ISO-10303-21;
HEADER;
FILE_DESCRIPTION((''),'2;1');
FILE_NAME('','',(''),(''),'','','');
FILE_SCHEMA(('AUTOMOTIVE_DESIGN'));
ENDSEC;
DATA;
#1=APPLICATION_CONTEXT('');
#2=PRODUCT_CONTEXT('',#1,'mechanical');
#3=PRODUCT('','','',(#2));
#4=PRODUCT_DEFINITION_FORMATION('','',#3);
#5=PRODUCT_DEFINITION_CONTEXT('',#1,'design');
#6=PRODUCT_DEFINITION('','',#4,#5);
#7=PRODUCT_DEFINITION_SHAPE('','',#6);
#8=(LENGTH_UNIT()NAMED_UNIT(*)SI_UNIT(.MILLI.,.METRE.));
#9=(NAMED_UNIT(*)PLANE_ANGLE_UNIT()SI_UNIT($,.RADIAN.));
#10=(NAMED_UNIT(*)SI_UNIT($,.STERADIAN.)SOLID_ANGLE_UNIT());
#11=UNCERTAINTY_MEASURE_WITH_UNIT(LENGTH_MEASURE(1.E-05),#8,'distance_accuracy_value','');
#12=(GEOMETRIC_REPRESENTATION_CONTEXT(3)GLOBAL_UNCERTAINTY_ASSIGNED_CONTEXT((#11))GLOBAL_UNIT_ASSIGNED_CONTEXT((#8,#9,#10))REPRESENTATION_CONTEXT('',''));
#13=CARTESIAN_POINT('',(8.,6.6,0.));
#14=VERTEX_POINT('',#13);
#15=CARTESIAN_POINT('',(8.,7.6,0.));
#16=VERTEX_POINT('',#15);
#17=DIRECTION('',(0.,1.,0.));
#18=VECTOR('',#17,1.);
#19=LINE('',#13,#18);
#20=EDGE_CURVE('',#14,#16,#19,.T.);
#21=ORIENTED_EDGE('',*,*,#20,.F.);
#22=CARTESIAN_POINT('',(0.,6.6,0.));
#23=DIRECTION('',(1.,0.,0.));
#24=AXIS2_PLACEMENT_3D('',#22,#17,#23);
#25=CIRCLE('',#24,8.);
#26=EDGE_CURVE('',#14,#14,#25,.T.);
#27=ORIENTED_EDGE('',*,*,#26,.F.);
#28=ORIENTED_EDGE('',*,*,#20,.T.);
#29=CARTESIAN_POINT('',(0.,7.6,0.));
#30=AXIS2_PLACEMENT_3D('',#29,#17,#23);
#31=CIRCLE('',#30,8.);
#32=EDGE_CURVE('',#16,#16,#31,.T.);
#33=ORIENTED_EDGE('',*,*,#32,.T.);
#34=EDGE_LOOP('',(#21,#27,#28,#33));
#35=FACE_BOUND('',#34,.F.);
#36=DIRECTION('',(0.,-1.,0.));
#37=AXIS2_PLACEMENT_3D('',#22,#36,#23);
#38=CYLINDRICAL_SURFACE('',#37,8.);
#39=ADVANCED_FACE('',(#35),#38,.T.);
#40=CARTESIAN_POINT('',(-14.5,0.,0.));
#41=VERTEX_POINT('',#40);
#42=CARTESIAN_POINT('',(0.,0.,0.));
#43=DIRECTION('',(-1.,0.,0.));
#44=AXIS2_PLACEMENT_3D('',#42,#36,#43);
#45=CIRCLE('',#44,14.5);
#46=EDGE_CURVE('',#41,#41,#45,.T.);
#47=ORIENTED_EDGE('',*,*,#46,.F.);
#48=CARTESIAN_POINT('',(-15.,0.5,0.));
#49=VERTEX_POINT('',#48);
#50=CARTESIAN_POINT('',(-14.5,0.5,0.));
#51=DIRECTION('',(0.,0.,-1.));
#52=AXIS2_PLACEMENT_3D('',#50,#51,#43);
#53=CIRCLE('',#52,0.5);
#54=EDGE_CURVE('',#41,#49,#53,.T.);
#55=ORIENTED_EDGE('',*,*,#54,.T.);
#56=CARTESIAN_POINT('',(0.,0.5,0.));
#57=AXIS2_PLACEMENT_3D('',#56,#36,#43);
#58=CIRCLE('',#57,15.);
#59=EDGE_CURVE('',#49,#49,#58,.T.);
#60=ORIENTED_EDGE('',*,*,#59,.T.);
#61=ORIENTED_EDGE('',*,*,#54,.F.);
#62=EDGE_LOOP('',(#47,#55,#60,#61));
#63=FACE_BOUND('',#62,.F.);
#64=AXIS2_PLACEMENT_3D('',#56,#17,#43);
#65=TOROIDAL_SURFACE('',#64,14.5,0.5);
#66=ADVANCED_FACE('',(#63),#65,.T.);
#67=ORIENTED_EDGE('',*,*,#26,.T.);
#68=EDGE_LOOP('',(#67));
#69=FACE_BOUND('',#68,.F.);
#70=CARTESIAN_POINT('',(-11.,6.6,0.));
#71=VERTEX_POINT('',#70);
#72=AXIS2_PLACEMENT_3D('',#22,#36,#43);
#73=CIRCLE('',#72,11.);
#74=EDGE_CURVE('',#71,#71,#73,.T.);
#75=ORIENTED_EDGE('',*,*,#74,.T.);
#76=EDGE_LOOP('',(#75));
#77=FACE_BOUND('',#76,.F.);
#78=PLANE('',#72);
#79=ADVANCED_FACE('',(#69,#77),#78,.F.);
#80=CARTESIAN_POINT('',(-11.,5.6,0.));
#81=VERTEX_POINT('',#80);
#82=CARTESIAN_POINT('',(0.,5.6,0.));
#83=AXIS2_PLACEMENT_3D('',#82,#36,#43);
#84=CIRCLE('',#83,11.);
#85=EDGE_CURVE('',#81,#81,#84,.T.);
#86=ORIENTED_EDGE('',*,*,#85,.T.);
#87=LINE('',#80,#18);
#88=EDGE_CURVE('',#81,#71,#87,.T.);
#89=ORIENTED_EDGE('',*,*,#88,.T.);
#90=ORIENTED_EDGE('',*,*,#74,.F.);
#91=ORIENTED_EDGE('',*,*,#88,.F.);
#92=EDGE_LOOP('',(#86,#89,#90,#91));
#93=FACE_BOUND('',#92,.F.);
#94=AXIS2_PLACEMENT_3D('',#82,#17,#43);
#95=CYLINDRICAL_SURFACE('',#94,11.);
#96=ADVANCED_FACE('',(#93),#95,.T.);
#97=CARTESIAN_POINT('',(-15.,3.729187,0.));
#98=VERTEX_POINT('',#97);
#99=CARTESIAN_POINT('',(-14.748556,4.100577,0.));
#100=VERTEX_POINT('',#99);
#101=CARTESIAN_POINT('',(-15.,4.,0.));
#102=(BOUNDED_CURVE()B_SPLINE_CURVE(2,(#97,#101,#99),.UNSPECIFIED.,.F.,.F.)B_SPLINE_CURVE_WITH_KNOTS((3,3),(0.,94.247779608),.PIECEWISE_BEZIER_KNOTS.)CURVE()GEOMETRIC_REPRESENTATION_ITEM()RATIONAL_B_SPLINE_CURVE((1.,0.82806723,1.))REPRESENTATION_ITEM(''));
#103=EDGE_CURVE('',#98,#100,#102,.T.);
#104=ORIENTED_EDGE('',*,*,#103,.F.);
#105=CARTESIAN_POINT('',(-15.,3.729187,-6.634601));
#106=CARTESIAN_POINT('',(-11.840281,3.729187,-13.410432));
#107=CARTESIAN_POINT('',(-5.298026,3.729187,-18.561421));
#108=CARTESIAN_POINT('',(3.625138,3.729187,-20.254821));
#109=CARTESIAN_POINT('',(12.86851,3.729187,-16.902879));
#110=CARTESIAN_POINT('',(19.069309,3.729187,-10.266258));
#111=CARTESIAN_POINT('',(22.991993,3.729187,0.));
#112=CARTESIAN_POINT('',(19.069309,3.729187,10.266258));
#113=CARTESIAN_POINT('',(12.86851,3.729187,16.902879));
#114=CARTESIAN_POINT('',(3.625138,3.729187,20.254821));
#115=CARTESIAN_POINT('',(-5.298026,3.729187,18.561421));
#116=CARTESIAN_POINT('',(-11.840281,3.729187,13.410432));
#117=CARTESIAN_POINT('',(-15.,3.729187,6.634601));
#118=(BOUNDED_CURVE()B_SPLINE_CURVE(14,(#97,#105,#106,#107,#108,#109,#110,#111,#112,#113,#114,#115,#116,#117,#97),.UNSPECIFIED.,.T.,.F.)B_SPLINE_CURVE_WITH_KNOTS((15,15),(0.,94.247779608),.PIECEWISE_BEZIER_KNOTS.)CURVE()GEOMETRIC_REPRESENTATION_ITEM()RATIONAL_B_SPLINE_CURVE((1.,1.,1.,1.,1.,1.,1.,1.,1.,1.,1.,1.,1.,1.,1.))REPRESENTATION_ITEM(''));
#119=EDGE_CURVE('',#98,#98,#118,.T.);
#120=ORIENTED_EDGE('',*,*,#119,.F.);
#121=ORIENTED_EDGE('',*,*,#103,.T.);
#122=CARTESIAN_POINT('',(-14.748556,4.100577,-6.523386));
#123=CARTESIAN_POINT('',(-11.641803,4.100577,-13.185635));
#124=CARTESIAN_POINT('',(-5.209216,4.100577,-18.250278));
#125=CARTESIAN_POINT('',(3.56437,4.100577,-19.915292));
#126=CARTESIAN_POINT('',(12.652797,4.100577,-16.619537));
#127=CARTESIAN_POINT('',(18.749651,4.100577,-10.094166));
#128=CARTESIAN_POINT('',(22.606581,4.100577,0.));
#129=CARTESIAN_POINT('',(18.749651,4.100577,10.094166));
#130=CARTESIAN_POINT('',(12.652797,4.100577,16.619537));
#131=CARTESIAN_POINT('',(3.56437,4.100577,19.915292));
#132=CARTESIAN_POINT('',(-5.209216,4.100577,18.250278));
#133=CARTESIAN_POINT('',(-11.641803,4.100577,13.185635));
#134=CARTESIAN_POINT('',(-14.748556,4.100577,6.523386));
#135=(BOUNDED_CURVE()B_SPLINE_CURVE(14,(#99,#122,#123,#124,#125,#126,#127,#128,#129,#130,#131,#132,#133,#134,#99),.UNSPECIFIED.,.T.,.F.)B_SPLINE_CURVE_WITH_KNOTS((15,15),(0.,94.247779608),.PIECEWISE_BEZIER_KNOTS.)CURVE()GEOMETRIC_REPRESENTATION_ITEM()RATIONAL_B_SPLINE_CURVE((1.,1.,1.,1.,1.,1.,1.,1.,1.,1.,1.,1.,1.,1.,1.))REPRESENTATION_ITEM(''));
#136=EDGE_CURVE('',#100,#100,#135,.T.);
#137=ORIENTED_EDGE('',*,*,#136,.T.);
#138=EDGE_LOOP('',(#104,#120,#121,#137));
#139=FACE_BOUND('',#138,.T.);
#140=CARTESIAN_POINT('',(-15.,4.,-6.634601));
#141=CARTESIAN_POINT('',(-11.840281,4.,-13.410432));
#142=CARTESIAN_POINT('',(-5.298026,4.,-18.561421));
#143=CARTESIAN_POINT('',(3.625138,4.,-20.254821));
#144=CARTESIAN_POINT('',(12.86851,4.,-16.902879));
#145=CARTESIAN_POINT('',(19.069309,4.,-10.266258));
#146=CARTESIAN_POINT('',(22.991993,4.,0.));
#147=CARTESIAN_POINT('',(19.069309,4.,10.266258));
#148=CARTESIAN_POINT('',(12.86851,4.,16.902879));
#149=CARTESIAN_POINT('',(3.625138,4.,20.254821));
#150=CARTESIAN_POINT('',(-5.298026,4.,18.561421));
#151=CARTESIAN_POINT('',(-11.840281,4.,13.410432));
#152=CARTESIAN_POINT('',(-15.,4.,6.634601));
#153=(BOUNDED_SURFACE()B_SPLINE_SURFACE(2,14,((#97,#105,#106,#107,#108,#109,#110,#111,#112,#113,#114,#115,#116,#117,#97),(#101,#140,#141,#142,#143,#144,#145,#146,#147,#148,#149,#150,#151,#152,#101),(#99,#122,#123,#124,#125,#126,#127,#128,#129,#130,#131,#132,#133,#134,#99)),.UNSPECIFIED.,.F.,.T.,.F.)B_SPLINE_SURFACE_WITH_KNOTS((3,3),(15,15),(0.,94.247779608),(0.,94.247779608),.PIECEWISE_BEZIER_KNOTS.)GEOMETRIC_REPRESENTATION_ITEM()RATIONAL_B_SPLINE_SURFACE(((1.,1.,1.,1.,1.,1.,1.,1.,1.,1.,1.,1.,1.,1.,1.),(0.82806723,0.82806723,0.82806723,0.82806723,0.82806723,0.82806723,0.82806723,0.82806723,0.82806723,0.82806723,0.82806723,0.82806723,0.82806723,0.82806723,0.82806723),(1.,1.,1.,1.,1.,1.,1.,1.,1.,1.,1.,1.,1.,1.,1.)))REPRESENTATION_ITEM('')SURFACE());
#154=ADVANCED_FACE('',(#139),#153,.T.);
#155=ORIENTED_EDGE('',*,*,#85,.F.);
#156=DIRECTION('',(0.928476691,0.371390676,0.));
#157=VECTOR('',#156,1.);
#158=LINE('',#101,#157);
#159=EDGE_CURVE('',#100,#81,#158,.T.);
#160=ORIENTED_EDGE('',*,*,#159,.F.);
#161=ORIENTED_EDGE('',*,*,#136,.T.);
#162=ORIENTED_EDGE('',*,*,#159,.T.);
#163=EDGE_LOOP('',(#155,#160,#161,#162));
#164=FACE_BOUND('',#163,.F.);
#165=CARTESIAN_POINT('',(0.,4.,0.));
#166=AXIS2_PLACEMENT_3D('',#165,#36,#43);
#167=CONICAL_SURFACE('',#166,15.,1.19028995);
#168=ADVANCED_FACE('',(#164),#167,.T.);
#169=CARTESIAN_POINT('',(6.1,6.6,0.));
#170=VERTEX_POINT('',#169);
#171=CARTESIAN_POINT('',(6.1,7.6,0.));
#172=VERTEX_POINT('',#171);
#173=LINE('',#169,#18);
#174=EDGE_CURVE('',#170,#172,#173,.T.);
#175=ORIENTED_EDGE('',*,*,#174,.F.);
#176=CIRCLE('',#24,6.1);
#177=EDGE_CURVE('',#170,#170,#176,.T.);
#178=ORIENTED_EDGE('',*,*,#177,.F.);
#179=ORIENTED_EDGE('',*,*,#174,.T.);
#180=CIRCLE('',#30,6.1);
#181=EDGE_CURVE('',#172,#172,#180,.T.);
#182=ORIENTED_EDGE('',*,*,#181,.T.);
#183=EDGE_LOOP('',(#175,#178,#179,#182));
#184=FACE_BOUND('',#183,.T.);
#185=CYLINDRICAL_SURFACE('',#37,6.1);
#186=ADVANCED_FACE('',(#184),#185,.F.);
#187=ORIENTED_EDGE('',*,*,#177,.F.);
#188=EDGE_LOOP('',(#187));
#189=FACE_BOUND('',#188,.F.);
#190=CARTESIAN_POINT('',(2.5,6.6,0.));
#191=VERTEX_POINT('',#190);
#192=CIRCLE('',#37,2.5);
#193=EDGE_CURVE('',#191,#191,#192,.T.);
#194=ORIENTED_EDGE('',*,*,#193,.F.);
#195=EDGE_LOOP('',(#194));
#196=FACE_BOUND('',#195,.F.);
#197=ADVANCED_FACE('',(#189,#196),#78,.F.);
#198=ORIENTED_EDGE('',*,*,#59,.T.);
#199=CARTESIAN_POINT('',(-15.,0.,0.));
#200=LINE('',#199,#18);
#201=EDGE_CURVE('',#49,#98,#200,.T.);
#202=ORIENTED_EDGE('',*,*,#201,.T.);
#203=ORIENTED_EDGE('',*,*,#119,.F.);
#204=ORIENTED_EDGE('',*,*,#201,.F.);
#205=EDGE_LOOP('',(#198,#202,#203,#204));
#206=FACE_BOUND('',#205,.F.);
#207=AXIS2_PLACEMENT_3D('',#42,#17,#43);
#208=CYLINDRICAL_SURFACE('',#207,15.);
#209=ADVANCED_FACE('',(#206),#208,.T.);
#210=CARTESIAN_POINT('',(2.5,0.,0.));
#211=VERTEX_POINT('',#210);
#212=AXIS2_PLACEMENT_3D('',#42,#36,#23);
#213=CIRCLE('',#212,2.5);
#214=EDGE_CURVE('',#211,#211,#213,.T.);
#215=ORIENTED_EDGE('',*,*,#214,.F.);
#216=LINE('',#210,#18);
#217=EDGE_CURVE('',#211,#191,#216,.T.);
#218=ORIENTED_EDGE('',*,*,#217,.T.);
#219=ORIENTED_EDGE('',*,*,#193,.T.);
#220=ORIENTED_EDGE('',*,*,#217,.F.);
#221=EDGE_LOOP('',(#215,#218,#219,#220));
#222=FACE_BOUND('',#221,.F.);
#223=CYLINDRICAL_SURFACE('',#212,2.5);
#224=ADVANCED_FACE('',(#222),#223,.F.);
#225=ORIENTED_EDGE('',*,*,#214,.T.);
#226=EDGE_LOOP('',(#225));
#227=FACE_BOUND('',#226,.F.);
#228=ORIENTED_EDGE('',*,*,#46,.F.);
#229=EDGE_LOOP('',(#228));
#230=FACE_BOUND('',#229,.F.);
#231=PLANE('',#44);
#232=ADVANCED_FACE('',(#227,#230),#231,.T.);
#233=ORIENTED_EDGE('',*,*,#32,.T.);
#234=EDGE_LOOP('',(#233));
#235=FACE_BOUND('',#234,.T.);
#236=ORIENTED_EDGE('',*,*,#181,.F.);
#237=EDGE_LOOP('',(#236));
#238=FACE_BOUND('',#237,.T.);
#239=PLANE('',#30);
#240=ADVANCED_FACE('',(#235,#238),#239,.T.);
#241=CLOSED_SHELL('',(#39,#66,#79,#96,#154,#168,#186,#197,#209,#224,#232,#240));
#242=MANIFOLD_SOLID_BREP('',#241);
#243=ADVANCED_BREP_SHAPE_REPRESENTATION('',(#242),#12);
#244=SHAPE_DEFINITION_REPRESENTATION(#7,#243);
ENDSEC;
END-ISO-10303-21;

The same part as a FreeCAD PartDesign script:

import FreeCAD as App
import Part
import Sketcher

V = App.Vector


def edges_at(feature, points):
    """Names of the edges that pass closest to the given points."""
    edges = feature.Shape.Edges
    near = lambda p: min(range(len(edges)), key=lambda i: edges[i].distToShape(Part.Vertex(*p))[0])
    return sorted({f"Edge{near(p) + 1}" for p in points})


def add_polygon(sketch, points):
    """Adds a closed chain of lines whose ends are joined by coincident constraints."""
    first, n = sketch.GeometryCount, len(points)
    for a, b in zip(points, points[1:] + points[:1]):
        sketch.addGeometry(Part.LineSegment(App.Vector(*a, 0), App.Vector(*b, 0)), False)
    for i in range(n):
        sketch.addConstraint(Sketcher.Constraint("Coincident", first + i, 2, first + (i + 1) % n, 1))

doc = App.newDocument("Part")
body = doc.addObject("PartDesign::Body", "Body")

# Sketch on XY plane
sketch1 = doc.addObject("Sketcher::SketchObject", "Sketch")
body.addObject(sketch1)
sketch1.AttachmentSupport = (doc.XY_Plane, [""])
sketch1.MapMode = "FlatFace"
add_polygon(sketch1, [(-15, 0), (0, 0), (0, 6.6), (-11, 6.6), (-11, 5.6), (-15, 4)])  # lines 0-5
sketch1.addConstraint([
    Sketcher.Constraint("Horizontal", 0),
    Sketcher.Constraint("Vertical", 1),
    Sketcher.Constraint("Horizontal", 2),
    Sketcher.Constraint("Vertical", 3),
    Sketcher.Constraint("Vertical", 5),
    Sketcher.Constraint("Coincident", 0, 2, -1, 1),
    Sketcher.Constraint("DistanceX", 2, 2, 2, 1, 11.0),
    Sketcher.Constraint("DistanceY", 3, 2, 3, 1, 1.0),
    Sketcher.Constraint("DistanceY", 5, 2, 5, 1, 4.0),
    Sketcher.Constraint("DistanceX", 4, 2, 3, 2, 4.0),
    Sketcher.Constraint("DistanceY", 4, 2, 2, 2, 2.6),
])
revolution = doc.addObject("PartDesign::Revolution", "Revolution")
body.addObject(revolution)
revolution.Profile = sketch1
revolution.ReferenceAxis = (sketch1, ["V_Axis"])
revolution.Angle = 360
doc.recompute()

fillet = doc.addObject("PartDesign::Fillet", "Fillet")
body.addObject(fillet)
fillet.Base = (revolution, edges_at(revolution, [(15, 0, 0)]))
fillet.Radius = 0.5

# Sketch on XZ plane
sketch2 = doc.addObject("Sketcher::SketchObject", "Sketch001")
body.addObject(sketch2)
sketch2.AttachmentSupport = (doc.XZ_Plane, [""])
sketch2.MapMode = "FlatFace"
sketch2.addGeometry(Part.Circle(V(0, 0, 0), V(0, 0, 1), 2.5), False)
sketch2.addConstraint([
    Sketcher.Constraint("Coincident", 0, 3, -1, 1),
    Sketcher.Constraint("Diameter", 0, 5.0),
])
pocket1 = doc.addObject("PartDesign::Pocket", "Pocket")
body.addObject(pocket1)
pocket1.Profile = sketch2
pocket1.Length = 6.6
doc.recompute()

fillet2 = doc.addObject("PartDesign::Fillet", "Fillet001")
body.addObject(fillet2)
fillet2.Base = (pocket1, edges_at(pocket1, [(15, 4, 0)]))
fillet2.Radius = 0.4

# Sketch on XZ plane
sketch3 = doc.addObject("Sketcher::SketchObject", "Sketch002")
body.addObject(sketch3)
sketch3.AttachmentSupport = (doc.XZ_Plane, [""])
sketch3.MapMode = "FlatFace"
sketch3.AttachmentOffset = App.Placement(V(0, 0, -6.6), App.Rotation())
sketch3.addGeometry([
    Part.Circle(V(0, 0, 0), V(0, 0, 1), 8),
    Part.Circle(V(0, 0, 0), V(0, 0, 1), 6),
], False)
sketch3.addConstraint([
    Sketcher.Constraint("Coincident", 0, 3, -1, 1),
    Sketcher.Constraint("Coincident", 1, 3, -1, 1),
    Sketcher.Constraint("Diameter", 0, 16.0),
    Sketcher.Constraint("Diameter", 1, 12.2),
])
pad1 = doc.addObject("PartDesign::Pad", "Pad")
body.addObject(pad1)
pad1.Profile = sketch3
pad1.Length = 1
pad1.Reversed = True

doc.recompute()
